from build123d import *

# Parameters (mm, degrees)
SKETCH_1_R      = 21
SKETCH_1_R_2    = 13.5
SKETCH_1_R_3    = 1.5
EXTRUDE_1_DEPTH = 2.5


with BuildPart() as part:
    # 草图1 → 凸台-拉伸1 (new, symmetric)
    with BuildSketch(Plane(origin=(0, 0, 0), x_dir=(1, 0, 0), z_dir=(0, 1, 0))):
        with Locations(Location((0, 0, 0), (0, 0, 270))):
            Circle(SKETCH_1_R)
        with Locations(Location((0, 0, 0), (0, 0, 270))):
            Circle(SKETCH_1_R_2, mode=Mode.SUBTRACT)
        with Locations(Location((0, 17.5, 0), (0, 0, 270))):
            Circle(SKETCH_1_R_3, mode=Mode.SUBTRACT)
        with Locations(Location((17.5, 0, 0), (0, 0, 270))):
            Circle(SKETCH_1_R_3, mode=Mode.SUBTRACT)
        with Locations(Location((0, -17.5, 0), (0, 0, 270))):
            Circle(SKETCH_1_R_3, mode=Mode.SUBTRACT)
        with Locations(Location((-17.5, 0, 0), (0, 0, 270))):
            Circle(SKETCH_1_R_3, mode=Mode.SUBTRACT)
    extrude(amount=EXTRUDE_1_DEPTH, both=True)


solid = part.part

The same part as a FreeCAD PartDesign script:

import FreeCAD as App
import Part
import Sketcher
from FreeCAD import Vector

doc = App.newDocument("Part")
body = doc.addObject("PartDesign::Body", "Body")

# Sketch on XZ plane
sketch1 = body.newObject("Sketcher::SketchObject", "Sketch")
sketch1.AttachmentSupport = (doc.getObject("XZ_Plane"), [""])
sketch1.MapMode = "FlatFace"
sketch1.addGeometry([
    Part.Circle(Vector(0, 0, 0), Vector(0, 0, 1), 21),  # 0
    Part.Circle(Vector(0, -17.5, 0), Vector(0, 0, 1), 1.5),  # 1
    Part.Circle(Vector(-17.5, 0, 0), Vector(0, 0, 1), 1.5),  # 2
    Part.Circle(Vector(17.5, 0, 0), Vector(0, 0, 1), 1.5),  # 3
    Part.Circle(Vector(0, 0, 0), Vector(0, 0, 1), 13.5),  # 4
    Part.Circle(Vector(0, 17.5, 0), Vector(0, 0, 1), 1.5),  # 5
], False)
sketch1.addConstraint([
    Sketcher.Constraint("Coincident", 0, 3, -1, 1),
    Sketcher.Constraint("Coincident", 4, 3, -1, 1),
    Sketcher.Constraint("Equal", 1, 2),
    Sketcher.Constraint("Equal", 2, 3),
    Sketcher.Constraint("Equal", 3, 5),
    Sketcher.Constraint("Symmetric", 2, 3, 3, 3, -1, 1),
    Sketcher.Constraint("Symmetric", 1, 3, 5, 3, -1, 1),
    Sketcher.Constraint("PointOnObject", 1, 3, -2),
    Sketcher.Constraint("PointOnObject", 2, 3, -1),
    Sketcher.Constraint("Diameter", 0, 42.0),
    Sketcher.Constraint("Diameter", 1, 3.0),
    Sketcher.Constraint("Diameter", 4, 27.0),
    Sketcher.Constraint("DistanceX", 2, 3, 3, 3, 35.0),
    Sketcher.Constraint("DistanceY", 1, 3, 5, 3, 35.0),
])
pad1 = body.newObject("PartDesign::Pad", "Pad")
pad1.Profile = sketch1
pad1.Length = 5
pad1.Midplane = True

doc.recompute()
